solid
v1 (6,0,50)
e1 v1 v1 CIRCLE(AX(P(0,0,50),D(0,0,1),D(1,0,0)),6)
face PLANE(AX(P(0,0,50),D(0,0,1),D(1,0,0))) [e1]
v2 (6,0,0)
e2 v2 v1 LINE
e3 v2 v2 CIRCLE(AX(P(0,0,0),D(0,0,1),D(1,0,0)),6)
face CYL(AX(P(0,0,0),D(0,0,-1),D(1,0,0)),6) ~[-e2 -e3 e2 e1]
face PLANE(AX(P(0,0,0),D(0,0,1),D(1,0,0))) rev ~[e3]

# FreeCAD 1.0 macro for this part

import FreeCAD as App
import Part
import Sketcher

V = App.Vector
Q = App.Units.Quantity

doc = App.newDocument("Part")
body = doc.addObject("PartDesign::Body", "Body")

sketch1 = body.newObject("Sketcher::SketchObject", "Sketch")
sketch1.AttachmentSupport = (doc.getObject("XY_Plane"), [""])
sketch1.MapMode = "FlatFace"
sketch1.addGeometry(Part.Circle(V(0, 0, 0), V(0, 0, 1), 6), False)
sketch1.addConstraint([
    Sketcher.Constraint("Coincident", 0, 3, -1, 1),
    Sketcher.Constraint("Diameter", 0, Q("12 mm")),
])
pad1 = body.newObject("PartDesign::Pad", "Pad")
pad1.Profile = sketch1
pad1.Length = 50

doc.recompute()
